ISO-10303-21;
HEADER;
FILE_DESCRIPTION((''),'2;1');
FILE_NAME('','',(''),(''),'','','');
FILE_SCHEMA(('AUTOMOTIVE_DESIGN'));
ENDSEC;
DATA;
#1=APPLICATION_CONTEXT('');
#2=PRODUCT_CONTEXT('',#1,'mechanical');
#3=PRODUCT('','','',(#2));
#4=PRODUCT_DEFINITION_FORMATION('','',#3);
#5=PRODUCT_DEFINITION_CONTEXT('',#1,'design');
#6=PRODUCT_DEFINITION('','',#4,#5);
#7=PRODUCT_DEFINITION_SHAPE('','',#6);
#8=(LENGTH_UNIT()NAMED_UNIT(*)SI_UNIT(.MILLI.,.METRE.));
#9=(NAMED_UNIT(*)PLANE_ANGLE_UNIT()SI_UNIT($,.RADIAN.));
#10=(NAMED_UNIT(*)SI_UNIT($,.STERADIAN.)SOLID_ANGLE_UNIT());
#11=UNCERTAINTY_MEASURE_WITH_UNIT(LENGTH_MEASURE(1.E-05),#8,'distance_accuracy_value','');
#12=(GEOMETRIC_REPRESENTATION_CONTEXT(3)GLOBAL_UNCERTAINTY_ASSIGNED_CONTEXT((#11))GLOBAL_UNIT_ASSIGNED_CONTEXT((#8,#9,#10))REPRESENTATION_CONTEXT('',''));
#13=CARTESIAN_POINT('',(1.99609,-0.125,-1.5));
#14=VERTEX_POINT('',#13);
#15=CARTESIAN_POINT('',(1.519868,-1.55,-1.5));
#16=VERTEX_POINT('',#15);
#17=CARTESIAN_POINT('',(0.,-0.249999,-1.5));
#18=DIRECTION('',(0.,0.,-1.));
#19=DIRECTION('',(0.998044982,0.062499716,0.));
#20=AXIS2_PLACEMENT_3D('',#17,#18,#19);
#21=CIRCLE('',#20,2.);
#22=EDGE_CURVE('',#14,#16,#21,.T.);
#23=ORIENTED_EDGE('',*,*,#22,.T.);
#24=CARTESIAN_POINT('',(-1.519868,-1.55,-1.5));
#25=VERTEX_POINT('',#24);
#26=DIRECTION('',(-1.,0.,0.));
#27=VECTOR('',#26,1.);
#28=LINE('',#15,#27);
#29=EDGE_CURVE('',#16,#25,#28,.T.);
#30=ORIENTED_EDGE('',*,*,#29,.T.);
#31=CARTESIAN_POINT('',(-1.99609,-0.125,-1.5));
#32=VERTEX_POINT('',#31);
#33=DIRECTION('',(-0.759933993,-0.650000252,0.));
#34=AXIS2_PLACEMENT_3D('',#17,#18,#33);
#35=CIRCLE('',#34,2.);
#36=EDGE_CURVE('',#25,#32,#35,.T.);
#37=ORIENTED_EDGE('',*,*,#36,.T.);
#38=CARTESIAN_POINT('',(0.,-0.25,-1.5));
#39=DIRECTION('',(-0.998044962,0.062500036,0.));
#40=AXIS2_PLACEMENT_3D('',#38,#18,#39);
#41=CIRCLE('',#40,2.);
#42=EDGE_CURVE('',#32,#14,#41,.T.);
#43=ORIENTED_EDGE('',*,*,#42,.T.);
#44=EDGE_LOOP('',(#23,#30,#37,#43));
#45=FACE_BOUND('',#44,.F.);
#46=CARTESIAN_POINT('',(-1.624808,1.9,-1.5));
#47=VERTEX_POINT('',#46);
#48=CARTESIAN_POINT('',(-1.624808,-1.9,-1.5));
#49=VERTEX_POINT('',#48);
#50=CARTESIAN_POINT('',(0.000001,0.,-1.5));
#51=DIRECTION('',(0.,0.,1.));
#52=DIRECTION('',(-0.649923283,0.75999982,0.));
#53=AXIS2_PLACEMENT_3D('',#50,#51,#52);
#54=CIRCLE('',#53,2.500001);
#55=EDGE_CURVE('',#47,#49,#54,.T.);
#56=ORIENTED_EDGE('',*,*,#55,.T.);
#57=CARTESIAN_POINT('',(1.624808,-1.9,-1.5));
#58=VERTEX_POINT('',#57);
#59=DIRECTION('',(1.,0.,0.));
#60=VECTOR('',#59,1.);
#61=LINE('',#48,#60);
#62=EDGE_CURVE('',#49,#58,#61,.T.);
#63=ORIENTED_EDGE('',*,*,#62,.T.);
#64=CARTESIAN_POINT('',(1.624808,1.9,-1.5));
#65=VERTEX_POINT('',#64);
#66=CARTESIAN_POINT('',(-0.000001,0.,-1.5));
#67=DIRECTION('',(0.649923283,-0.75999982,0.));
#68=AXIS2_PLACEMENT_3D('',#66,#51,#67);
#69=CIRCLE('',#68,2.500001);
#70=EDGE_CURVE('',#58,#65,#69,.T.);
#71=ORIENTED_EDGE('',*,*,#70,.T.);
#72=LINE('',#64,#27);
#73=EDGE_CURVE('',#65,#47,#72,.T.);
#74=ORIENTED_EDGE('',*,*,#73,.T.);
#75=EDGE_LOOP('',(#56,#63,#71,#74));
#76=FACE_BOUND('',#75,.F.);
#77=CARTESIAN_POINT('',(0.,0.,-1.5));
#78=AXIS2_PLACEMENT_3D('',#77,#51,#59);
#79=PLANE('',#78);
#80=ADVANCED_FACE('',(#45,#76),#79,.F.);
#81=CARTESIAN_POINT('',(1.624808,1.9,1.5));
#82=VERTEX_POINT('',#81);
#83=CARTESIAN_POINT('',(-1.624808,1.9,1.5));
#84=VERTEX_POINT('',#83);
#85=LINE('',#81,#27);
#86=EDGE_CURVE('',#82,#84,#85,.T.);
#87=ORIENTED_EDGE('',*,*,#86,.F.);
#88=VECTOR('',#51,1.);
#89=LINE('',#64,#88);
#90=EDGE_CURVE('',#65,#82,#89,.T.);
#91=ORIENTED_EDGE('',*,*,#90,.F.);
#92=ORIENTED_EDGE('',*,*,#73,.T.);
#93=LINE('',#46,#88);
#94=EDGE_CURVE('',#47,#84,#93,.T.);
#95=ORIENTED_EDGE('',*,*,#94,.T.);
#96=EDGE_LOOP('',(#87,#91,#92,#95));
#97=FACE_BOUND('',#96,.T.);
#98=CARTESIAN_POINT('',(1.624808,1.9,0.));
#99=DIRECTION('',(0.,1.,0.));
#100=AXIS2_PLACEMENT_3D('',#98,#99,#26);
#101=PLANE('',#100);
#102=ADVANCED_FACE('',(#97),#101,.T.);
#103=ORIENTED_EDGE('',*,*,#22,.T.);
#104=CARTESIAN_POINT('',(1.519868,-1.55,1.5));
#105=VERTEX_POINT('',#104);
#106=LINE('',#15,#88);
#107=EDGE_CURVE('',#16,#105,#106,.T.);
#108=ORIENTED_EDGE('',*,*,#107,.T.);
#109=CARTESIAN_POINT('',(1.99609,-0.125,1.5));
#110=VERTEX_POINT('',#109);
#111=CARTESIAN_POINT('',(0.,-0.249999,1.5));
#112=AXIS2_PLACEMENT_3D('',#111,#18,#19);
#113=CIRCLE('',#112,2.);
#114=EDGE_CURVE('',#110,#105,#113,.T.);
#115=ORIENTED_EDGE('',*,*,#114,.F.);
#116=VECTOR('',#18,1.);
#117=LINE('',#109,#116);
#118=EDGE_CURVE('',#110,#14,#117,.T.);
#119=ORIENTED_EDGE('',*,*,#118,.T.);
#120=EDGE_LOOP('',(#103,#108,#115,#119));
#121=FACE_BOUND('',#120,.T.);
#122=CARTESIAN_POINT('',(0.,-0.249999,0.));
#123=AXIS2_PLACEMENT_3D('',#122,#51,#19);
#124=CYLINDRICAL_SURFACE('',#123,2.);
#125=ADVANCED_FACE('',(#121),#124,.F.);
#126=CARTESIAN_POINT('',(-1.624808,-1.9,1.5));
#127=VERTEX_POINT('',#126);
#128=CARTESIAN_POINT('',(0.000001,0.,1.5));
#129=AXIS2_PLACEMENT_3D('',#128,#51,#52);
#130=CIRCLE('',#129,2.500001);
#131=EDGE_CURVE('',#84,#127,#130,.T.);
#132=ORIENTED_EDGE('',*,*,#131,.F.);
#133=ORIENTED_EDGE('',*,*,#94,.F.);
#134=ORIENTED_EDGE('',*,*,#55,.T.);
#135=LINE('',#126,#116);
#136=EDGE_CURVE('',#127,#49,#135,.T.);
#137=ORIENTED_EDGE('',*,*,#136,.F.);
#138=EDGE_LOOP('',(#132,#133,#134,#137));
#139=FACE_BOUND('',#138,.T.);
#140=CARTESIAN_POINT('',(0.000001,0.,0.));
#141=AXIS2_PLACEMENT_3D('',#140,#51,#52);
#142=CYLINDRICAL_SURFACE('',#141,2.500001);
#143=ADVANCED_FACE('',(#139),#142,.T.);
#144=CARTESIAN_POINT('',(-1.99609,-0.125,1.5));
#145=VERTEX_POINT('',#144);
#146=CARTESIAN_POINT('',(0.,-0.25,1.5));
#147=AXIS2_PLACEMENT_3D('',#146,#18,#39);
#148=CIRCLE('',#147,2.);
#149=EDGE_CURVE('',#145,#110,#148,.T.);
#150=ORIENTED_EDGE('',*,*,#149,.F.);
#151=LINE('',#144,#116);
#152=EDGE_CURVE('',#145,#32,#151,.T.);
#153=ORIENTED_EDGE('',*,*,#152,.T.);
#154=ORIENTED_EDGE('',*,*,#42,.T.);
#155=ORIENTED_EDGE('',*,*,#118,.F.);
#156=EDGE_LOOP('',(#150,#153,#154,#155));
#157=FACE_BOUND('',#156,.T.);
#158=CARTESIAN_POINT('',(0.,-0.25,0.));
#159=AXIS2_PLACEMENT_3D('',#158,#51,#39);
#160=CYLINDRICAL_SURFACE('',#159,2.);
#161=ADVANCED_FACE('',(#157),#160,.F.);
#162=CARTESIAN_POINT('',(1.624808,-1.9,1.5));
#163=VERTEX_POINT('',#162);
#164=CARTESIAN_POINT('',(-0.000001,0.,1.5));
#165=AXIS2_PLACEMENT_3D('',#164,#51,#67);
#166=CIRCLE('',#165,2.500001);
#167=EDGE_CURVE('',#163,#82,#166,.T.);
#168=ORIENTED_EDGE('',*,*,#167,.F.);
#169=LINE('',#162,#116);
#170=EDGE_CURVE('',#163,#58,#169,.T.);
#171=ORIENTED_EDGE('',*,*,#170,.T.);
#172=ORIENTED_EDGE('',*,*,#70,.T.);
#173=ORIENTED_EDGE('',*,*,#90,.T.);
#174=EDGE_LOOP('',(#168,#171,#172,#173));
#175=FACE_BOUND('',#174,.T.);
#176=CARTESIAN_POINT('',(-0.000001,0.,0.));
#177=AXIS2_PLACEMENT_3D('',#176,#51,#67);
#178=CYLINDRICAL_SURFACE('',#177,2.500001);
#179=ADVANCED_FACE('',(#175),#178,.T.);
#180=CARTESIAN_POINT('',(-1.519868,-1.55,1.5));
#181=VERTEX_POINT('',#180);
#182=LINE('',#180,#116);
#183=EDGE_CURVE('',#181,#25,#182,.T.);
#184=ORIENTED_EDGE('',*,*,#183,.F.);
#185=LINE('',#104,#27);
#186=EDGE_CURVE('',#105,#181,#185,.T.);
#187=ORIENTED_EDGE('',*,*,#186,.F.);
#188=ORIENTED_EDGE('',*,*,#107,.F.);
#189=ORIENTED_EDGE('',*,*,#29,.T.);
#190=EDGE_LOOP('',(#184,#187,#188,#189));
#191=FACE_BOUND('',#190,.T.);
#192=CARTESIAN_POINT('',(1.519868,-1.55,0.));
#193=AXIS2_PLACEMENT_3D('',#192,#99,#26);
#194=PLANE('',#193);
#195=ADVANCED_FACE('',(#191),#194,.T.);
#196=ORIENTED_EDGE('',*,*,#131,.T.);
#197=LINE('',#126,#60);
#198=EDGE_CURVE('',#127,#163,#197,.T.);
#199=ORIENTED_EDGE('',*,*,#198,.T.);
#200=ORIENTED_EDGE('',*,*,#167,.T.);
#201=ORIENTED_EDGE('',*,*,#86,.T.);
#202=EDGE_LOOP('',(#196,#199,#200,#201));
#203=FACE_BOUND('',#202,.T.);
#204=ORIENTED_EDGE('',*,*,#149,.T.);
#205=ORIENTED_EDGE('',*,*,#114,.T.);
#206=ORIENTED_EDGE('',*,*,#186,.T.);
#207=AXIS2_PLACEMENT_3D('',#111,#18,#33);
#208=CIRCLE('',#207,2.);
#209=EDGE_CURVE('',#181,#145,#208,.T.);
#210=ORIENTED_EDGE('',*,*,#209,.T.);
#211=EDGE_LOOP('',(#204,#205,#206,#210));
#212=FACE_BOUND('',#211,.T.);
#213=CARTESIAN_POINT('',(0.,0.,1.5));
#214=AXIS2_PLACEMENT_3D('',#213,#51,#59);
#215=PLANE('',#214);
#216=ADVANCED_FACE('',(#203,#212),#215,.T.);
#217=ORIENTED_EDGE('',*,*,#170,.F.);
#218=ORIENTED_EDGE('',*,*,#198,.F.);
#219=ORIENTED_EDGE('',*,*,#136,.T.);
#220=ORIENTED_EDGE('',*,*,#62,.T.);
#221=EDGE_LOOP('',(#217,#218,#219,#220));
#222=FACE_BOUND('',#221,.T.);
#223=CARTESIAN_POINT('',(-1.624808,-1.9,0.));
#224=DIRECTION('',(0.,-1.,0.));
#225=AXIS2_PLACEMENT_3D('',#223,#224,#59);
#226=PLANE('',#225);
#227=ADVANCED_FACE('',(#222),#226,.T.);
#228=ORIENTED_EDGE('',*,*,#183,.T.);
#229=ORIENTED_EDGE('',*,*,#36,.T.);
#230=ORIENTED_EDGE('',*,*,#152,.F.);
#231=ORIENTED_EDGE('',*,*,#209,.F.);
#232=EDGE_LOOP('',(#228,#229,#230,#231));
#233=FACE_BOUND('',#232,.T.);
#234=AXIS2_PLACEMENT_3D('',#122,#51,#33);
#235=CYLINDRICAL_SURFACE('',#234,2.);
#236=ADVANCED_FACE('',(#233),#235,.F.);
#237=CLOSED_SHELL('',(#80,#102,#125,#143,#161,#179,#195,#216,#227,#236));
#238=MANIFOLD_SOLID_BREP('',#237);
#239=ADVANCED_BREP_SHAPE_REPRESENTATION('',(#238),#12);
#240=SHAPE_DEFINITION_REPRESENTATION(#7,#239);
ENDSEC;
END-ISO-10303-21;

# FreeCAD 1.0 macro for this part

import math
import FreeCAD as App
import Part
import Sketcher
Q = App.Units.Quantity

doc = App.newDocument("Part")
params = doc.addObject("Spreadsheet::Sheet", "Params")
for row, (alias, value) in enumerate([
    ("sketch1_radius", "2 mm"),
    ("sketch1_radius2", "2.500001 mm"),
    ("pad1_length", "3 mm"),
], start=1):
    params.set(f"A{row}", alias)
    params.set(f"B{row}", "=" + value)
    params.setAlias(f"B{row}", alias)

body = doc.addObject("PartDesign::Body", "Body")

# Sketch on XY plane
sketch1 = body.newObject("Sketcher::SketchObject", "Sketch")
sketch1.AttachmentSupport = (doc.getObject("XY_Plane"), [""])
sketch1.MapMode = "FlatFace"
sketch1.addGeometry([
    Part.ArcOfCircle(Part.Circle(App.Vector(-0.000001, 0, 0), App.Vector(0, 0, 1), 2.500001), math.radians(-49.464182), math.radians(49.464182)),  # 0
    Part.LineSegment(App.Vector(1.624808, 1.9, 0), App.Vector(-1.624808, 1.9, 0)),  # 1
    Part.ArcOfCircle(Part.Circle(App.Vector(0.000001, 0, 0), App.Vector(0, 0, 1), 2.500001), math.radians(130.535818), math.radians(229.464182)),  # 2
    Part.LineSegment(App.Vector(-1.624808, -1.9, 0), App.Vector(1.624808, -1.9, 0)),  # 3
    Part.ArcOfCircle(Part.Circle(App.Vector(0, -0.249999, 0), App.Vector(0, 0, 1), 2), math.radians(-40.541621), math.radians(3.583305)),  # 4
    Part.LineSegment(App.Vector(1.519868, -1.55, 0), App.Vector(-1.519868, -1.55, 0)),  # 5
    Part.ArcOfCircle(Part.Circle(App.Vector(0, -0.249999, 0), App.Vector(0, 0, 1), 2), math.radians(176.416695), math.radians(220.541621)),  # 6
    Part.ArcOfCircle(Part.Circle(App.Vector(0, -0.25, 0), App.Vector(0, 0, 1), 2), math.radians(3.583324), math.radians(176.416676)),  # 7
], False)
sketch1.addConstraint([
    Sketcher.Constraint("Coincident", 0, 2, 1, 1),
    Sketcher.Constraint("Coincident", 1, 2, 2, 1),
    Sketcher.Constraint("Coincident", 2, 2, 3, 1),
    Sketcher.Constraint("Coincident", 3, 2, 0, 1),
    Sketcher.Constraint("Coincident", 4, 1, 5, 1),
    Sketcher.Constraint("Coincident", 5, 2, 6, 2),
    Sketcher.Constraint("Tangent", 6, 1, 7, 2),
    Sketcher.Constraint("Tangent", 7, 1, 4, 2),
    Sketcher.Constraint("Horizontal", 1),
    Sketcher.Constraint("Horizontal", 3),
    Sketcher.Constraint("Horizontal", 5),
    Sketcher.Constraint("Coincident", 0, 3, -1, 1),
    Sketcher.Constraint("Coincident", 2, 3, -1, 1),
    Sketcher.Constraint("Coincident", 6, 3, 4, 3),
    Sketcher.Constraint("Equal", 0, 2),
    Sketcher.Constraint("Symmetric", 6, 1, 7, 1, -2),
    Sketcher.Constraint("Vertical", 1, 2, 2, 2),
    Sketcher.Constraint("Radius", 4, Q("2 mm")),
    Sketcher.Constraint("Radius", 0, Q("2.500001 mm")),
    Sketcher.Constraint("DistanceY", -1, 1, 0, 2, Q("1.9 mm")),
    Sketcher.Constraint("DistanceY", 4, 1, 7, 3, Q("1.3 mm")),
    Sketcher.Constraint("DistanceY", 4, 3, -1, 1, Q("0.249999 mm")),
    Sketcher.Constraint("DistanceY", 6, 1, -1, 1, Q("0.125 mm")),
])
sketch1.setExpression("Constraints[17]", "Params.sketch1_radius")
sketch1.setExpression("Constraints[18]", "Params.sketch1_radius2")
pad1 = body.newObject("PartDesign::Pad", "Pad")
pad1.Profile = sketch1
pad1.setExpression("Length", "Params.pad1_length")
pad1.Midplane = True

doc.recompute()
